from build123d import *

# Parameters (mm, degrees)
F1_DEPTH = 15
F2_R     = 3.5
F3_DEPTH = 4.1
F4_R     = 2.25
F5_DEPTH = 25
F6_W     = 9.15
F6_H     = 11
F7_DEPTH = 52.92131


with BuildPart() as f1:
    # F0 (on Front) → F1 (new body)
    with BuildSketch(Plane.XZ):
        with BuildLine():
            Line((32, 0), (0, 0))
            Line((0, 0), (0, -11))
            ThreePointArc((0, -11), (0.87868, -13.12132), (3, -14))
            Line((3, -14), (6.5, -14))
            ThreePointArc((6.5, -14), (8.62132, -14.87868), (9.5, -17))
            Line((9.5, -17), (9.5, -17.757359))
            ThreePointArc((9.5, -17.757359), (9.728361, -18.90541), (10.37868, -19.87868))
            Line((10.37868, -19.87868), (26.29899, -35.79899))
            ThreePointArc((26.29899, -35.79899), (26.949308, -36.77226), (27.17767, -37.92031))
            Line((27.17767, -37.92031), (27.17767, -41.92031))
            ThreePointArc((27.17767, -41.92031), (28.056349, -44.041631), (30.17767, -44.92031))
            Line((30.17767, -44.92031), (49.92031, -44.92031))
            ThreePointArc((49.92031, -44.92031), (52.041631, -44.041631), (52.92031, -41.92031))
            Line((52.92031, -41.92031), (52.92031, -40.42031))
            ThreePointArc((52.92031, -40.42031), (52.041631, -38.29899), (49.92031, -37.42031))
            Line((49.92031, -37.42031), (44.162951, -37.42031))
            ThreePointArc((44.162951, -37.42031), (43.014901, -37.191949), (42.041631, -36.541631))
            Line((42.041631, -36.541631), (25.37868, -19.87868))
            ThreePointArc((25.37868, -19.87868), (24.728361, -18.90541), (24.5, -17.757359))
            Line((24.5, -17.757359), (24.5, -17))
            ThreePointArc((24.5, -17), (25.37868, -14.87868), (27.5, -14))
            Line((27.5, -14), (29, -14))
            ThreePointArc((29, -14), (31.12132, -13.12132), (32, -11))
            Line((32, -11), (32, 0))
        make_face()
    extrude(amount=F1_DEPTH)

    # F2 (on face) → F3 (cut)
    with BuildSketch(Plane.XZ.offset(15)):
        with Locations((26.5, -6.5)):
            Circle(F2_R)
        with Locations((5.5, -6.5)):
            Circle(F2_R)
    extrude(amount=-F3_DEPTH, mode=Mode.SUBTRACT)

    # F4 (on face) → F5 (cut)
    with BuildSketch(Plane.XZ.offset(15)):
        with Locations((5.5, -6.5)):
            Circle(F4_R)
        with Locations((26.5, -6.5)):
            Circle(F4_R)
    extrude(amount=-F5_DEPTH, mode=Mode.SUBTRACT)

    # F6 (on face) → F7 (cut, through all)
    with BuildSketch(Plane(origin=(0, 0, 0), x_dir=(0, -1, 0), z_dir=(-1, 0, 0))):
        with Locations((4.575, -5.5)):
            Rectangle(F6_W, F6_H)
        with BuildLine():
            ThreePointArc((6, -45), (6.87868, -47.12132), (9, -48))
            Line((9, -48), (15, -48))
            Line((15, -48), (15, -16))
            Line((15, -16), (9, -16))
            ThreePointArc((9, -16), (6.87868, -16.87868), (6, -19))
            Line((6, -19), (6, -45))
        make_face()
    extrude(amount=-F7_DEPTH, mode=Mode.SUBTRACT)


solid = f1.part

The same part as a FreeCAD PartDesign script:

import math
import FreeCAD as App
import Part
import Sketcher

V = App.Vector
Q = App.Units.Quantity


def add_polygon(sketch, points):
    """Adds a closed chain of lines whose ends are joined by coincident constraints."""
    first, n = sketch.GeometryCount, len(points)
    for a, b in zip(points, points[1:] + points[:1]):
        sketch.addGeometry(Part.LineSegment(App.Vector(*a, 0), App.Vector(*b, 0)), False)
    for i in range(n):
        sketch.addConstraint(Sketcher.Constraint("Coincident", first + i, 2, first + (i + 1) % n, 1))

doc = App.newDocument("Part")
body = doc.addObject("PartDesign::Body", "Body")

sketch1 = doc.addObject("Sketcher::SketchObject", "Sketch")
body.addObject(sketch1)
sketch1.AttachmentSupport = (doc.XZ_Plane, [""])
sketch1.MapMode = "FlatFace"
sketch1.addGeometry([
    Part.LineSegment(V(32, 0, 0), V(0, 0, 0)),
    Part.LineSegment(V(0, 0, 0), V(0, -11, 0)),
    Part.ArcOfCircle(Part.Circle(V(3, -11, 0), V(0, 0, 1), 3), math.radians(-180), math.radians(-90)),
    Part.LineSegment(V(3, -14, 0), V(6.5, -14, 0)),
    Part.ArcOfCircle(Part.Circle(V(6.5, -17, 0), V(0, 0, 1), 3), math.radians(0), math.radians(90)),
    Part.LineSegment(V(9.5, -17, 0), V(9.5, -17.8, 0)),
    Part.ArcOfCircle(Part.Circle(V(12.5, -17.8, 0), V(0, 0, 1), 3), math.radians(180), math.radians(225)),
    Part.LineSegment(V(10.4, -19.9, 0), V(26.3, -35.8, 0)),
    Part.ArcOfCircle(Part.Circle(V(24.2, -37.9, 0), V(0, 0, 1), 3), math.radians(0), math.radians(45)),
    Part.LineSegment(V(27.2, -37.9, 0), V(27.2, -41.9, 0)),
    Part.ArcOfCircle(Part.Circle(V(30.2, -41.9, 0), V(0, 0, 1), 3), math.radians(180), math.radians(270)),
    Part.LineSegment(V(30.2, -44.9, 0), V(49.9, -44.9, 0)),
    Part.ArcOfCircle(Part.Circle(V(49.9, -41.9, 0), V(0, 0, 1), 3), math.radians(-90), math.radians(0)),
    Part.LineSegment(V(52.9, -41.9, 0), V(52.9, -40.4, 0)),
    Part.ArcOfCircle(Part.Circle(V(49.9, -40.4, 0), V(0, 0, 1), 3), math.radians(0), math.radians(90)),
    Part.LineSegment(V(49.9, -37.4, 0), V(44.2, -37.4, 0)),
    Part.ArcOfCircle(Part.Circle(V(44.2, -34.4, 0), V(0, 0, 1), 3), math.radians(-135), math.radians(-90)),
    Part.LineSegment(V(42, -36.5, 0), V(25.4, -19.9, 0)),
    Part.ArcOfCircle(Part.Circle(V(27.5, -17.8, 0), V(0, 0, 1), 3), math.radians(180), math.radians(225)),
    Part.LineSegment(V(24.5, -17.8, 0), V(24.5, -17, 0)),
    Part.ArcOfCircle(Part.Circle(V(27.5, -17, 0), V(0, 0, 1), 3), math.radians(90), math.radians(180)),
    Part.LineSegment(V(27.5, -14, 0), V(29, -14, 0)),
    Part.ArcOfCircle(Part.Circle(V(29, -11, 0), V(0, 0, 1), 3), math.radians(-90), math.radians(0)),
    Part.LineSegment(V(32, -11, 0), V(32, 0, 0)),
], False)
sketch1.addConstraint([
    Sketcher.Constraint("Coincident", 0, 2, 1, 1),
    Sketcher.Constraint("Tangent", 1, 2, 2, 1),
    Sketcher.Constraint("Tangent", 2, 2, 3, 1),
    Sketcher.Constraint("Tangent", 3, 2, 4, 2),
    Sketcher.Constraint("Tangent", 4, 1, 5, 1),
    Sketcher.Constraint("Tangent", 5, 2, 6, 1),
    Sketcher.Constraint("Tangent", 6, 2, 7, 1),
    Sketcher.Constraint("Tangent", 7, 2, 8, 2),
    Sketcher.Constraint("Tangent", 8, 1, 9, 1),
    Sketcher.Constraint("Tangent", 9, 2, 10, 1),
    Sketcher.Constraint("Tangent", 10, 2, 11, 1),
    Sketcher.Constraint("Tangent", 11, 2, 12, 1),
    Sketcher.Constraint("Tangent", 12, 2, 13, 1),
    Sketcher.Constraint("Tangent", 13, 2, 14, 1),
    Sketcher.Constraint("Tangent", 14, 2, 15, 1),
    Sketcher.Constraint("Tangent", 15, 2, 16, 2),
    Sketcher.Constraint("Tangent", 16, 1, 17, 1),
    Sketcher.Constraint("Tangent", 17, 2, 18, 2),
    Sketcher.Constraint("Tangent", 18, 1, 19, 1),
    Sketcher.Constraint("Tangent", 19, 2, 20, 2),
    Sketcher.Constraint("Tangent", 20, 1, 21, 1),
    Sketcher.Constraint("Tangent", 21, 2, 22, 1),
    Sketcher.Constraint("Tangent", 22, 2, 23, 1),
    Sketcher.Constraint("Coincident", 23, 2, 0, 1),
    Sketcher.Constraint("Horizontal", 0),
    Sketcher.Constraint("Vertical", 1),
    Sketcher.Constraint("Horizontal", 3),
    Sketcher.Constraint("Vertical", 5),
    Sketcher.Constraint("Vertical", 9),
    Sketcher.Constraint("Horizontal", 11),
    Sketcher.Constraint("Vertical", 13),
    Sketcher.Constraint("Horizontal", 15),
    Sketcher.Constraint("Vertical", 19),
    Sketcher.Constraint("Horizontal", 21),
    Sketcher.Constraint("Vertical", 23),
    Sketcher.Constraint("Coincident", 0, 2, -1, 1),
    Sketcher.Constraint("Equal", 2, 4),
    Sketcher.Constraint("Equal", 10, 12),
    Sketcher.Constraint("Equal", 12, 14),
    Sketcher.Constraint("Equal", 14, 16),
    Sketcher.Constraint("Equal", 6, 18),
    Sketcher.Constraint("Equal", 14, 20),
    Sketcher.Constraint("Equal", 20, 22),
    Sketcher.Constraint("Parallel", 7, 17),
    Sketcher.Constraint("Horizontal", 6, 3, 18, 3),
    Sketcher.Constraint("Horizontal", 4, 3, 20, 3),
    Sketcher.Constraint("Horizontal", 2, 3, 22, 3),
    Sketcher.Constraint("Equal", 21, 13),
    Sketcher.Constraint("Radius", 2, 3.000001),
    Sketcher.Constraint("DistanceX", 0, 2, 0, 1, 32.0),
    Sketcher.Constraint("DistanceY", 1, 2, 1, 1, 11.0),
    Sketcher.Constraint("DistanceY", 9, 2, 9, 1, 4.0),
    Sketcher.Constraint("Angle", 7, Q("-45 deg")),
    Sketcher.Constraint("DistanceX", 3, 1, 3, 2, 3.5),
    Sketcher.Constraint("DistanceX", 21, 1, 21, 2, 1.5),
    Sketcher.Constraint("Radius", 6, 2.999994),
    Sketcher.Constraint("Radius", 8, 3.000005),
    Sketcher.Constraint("DistanceX", 11, 1, 11, 2, 19.74264),
    Sketcher.Constraint("DistanceY", 5, 2, 5, 1, 0.757359),
    Sketcher.Constraint("Distance", 7, 22.514718),
])
pad1 = doc.addObject("PartDesign::Pad", "Pad")
body.addObject(pad1)
pad1.Profile = sketch1
pad1.Length = 15

sketch2 = doc.addObject("Sketcher::SketchObject", "Sketch001")
body.addObject(sketch2)
sketch2.AttachmentSupport = (doc.XZ_Plane, [""])
sketch2.MapMode = "FlatFace"
sketch2.AttachmentOffset = App.Placement(V(0, 0, 15), App.Rotation())
sketch2.addGeometry([
    Part.Circle(V(26.5, -6.5, 0), V(0, 0, 1), 3.5),
    Part.Circle(V(5.5, -6.5, 0), V(0, 0, 1), 3.5),
], False)
sketch2.addConstraint([
    Sketcher.Constraint("Equal", 0, 1),
    Sketcher.Constraint("Horizontal", 0, 3, 1, 3),
    Sketcher.Constraint("Diameter", 0, 7.0),
    Sketcher.Constraint("DistanceX", 1, 3, 0, 3, 21.0),
    Sketcher.Constraint("DistanceX", -1, 1, 0, 3, 26.5),
    Sketcher.Constraint("DistanceY", 0, 3, -1, 1, 6.5),
])
pocket1 = doc.addObject("PartDesign::Pocket", "Pocket")
body.addObject(pocket1)
pocket1.Profile = sketch2
pocket1.Length = 4.1

sketch3 = doc.addObject("Sketcher::SketchObject", "Sketch002")
body.addObject(sketch3)
sketch3.AttachmentSupport = (doc.XZ_Plane, [""])
sketch3.MapMode = "FlatFace"
sketch3.AttachmentOffset = App.Placement(V(0, 0, 15), App.Rotation())
sketch3.addGeometry([
    Part.Circle(V(5.5, -6.5, 0), V(0, 0, 1), 2.2),
    Part.Circle(V(26.5, -6.5, 0), V(0, 0, 1), 2.2),
], False)
sketch3.addConstraint([
    Sketcher.Constraint("Equal", 0, 1),
    Sketcher.Constraint("Horizontal", 0, 3, 1, 3),
    Sketcher.Constraint("Diameter", 0, 4.5),
    Sketcher.Constraint("DistanceX", 0, 3, 1, 3, 21.0),
    Sketcher.Constraint("DistanceX", -1, 1, 0, 3, 5.5),
    Sketcher.Constraint("DistanceY", 0, 3, -1, 1, 6.5),
])
pocket2 = doc.addObject("PartDesign::Pocket", "Pocket001")
body.addObject(pocket2)
pocket2.Profile = sketch3
pocket2.Length = 25

sketch4 = doc.addObject("Sketcher::SketchObject", "Sketch003")
body.addObject(sketch4)
sketch4.AttachmentSupport = (doc.YZ_Plane, [""])
sketch4.MapMode = "FlatFace"
add_polygon(sketch4, [(0, 0), (0, -11), (-9.2, -11), (-9.2, 0)])
sketch4.addGeometry(Part.ArcOfCircle(Part.Circle(V(-9, -45, 0), V(0, 0, 1), 3), math.radians(-90), math.radians(0)), False)
sketch4.addGeometry(Part.LineSegment(V(-9, -48, 0), V(-15, -48, 0)), False)
sketch4.addGeometry(Part.LineSegment(V(-15, -48, 0), V(-15, -16, 0)), False)
sketch4.addGeometry(Part.LineSegment(V(-15, -16, 0), V(-9, -16, 0)), False)
sketch4.addGeometry(Part.ArcOfCircle(Part.Circle(V(-9, -19, 0), V(0, 0, 1), 3), math.radians(0), math.radians(90)), False)
sketch4.addGeometry(Part.LineSegment(V(-6, -19, 0), V(-6, -45, 0)), False)
sketch4.addConstraint([
    Sketcher.Constraint("Tangent", 4, 1, 5, 1),
    Sketcher.Constraint("Coincident", 5, 2, 6, 1),
    Sketcher.Constraint("Coincident", 6, 2, 7, 1),
    Sketcher.Constraint("Tangent", 7, 2, 8, 2),
    Sketcher.Constraint("Tangent", 8, 1, 9, 1),
    Sketcher.Constraint("Tangent", 9, 2, 4, 2),
    Sketcher.Constraint("Vertical", 0),
    Sketcher.Constraint("Horizontal", 1),
    Sketcher.Constraint("Vertical", 2),
    Sketcher.Constraint("Horizontal", 3),
    Sketcher.Constraint("Horizontal", 5),
    Sketcher.Constraint("Vertical", 6),
    Sketcher.Constraint("Horizontal", 7),
    Sketcher.Constraint("Vertical", 9),
    Sketcher.Constraint("Coincident", 3, 2, -1, 1),
    Sketcher.Constraint("Equal", 4, 8),
    Sketcher.Constraint("Radius", 4, 3.000001),
    Sketcher.Constraint("DistanceX", 5, 2, 5, 1, 6.0),
    Sketcher.Constraint("DistanceY", 0, 2, 0, 1, 11.0),
    Sketcher.Constraint("DistanceY", 6, 1, 6, 2, 32.0),
    Sketcher.Constraint("DistanceX", 4, 3, -1, 1, 9.000001),
    Sketcher.Constraint("DistanceY", 4, 3, -1, 1, 44.999999),
    Sketcher.Constraint("DistanceX", 1, 2, 1, 1, 9.15),
])
pocket3 = doc.addObject("PartDesign::Pocket", "Pocket002")
body.addObject(pocket3)
pocket3.Profile = sketch4
pocket3.Type = "ThroughAll"
pocket3.Reversed = True

doc.recompute()
